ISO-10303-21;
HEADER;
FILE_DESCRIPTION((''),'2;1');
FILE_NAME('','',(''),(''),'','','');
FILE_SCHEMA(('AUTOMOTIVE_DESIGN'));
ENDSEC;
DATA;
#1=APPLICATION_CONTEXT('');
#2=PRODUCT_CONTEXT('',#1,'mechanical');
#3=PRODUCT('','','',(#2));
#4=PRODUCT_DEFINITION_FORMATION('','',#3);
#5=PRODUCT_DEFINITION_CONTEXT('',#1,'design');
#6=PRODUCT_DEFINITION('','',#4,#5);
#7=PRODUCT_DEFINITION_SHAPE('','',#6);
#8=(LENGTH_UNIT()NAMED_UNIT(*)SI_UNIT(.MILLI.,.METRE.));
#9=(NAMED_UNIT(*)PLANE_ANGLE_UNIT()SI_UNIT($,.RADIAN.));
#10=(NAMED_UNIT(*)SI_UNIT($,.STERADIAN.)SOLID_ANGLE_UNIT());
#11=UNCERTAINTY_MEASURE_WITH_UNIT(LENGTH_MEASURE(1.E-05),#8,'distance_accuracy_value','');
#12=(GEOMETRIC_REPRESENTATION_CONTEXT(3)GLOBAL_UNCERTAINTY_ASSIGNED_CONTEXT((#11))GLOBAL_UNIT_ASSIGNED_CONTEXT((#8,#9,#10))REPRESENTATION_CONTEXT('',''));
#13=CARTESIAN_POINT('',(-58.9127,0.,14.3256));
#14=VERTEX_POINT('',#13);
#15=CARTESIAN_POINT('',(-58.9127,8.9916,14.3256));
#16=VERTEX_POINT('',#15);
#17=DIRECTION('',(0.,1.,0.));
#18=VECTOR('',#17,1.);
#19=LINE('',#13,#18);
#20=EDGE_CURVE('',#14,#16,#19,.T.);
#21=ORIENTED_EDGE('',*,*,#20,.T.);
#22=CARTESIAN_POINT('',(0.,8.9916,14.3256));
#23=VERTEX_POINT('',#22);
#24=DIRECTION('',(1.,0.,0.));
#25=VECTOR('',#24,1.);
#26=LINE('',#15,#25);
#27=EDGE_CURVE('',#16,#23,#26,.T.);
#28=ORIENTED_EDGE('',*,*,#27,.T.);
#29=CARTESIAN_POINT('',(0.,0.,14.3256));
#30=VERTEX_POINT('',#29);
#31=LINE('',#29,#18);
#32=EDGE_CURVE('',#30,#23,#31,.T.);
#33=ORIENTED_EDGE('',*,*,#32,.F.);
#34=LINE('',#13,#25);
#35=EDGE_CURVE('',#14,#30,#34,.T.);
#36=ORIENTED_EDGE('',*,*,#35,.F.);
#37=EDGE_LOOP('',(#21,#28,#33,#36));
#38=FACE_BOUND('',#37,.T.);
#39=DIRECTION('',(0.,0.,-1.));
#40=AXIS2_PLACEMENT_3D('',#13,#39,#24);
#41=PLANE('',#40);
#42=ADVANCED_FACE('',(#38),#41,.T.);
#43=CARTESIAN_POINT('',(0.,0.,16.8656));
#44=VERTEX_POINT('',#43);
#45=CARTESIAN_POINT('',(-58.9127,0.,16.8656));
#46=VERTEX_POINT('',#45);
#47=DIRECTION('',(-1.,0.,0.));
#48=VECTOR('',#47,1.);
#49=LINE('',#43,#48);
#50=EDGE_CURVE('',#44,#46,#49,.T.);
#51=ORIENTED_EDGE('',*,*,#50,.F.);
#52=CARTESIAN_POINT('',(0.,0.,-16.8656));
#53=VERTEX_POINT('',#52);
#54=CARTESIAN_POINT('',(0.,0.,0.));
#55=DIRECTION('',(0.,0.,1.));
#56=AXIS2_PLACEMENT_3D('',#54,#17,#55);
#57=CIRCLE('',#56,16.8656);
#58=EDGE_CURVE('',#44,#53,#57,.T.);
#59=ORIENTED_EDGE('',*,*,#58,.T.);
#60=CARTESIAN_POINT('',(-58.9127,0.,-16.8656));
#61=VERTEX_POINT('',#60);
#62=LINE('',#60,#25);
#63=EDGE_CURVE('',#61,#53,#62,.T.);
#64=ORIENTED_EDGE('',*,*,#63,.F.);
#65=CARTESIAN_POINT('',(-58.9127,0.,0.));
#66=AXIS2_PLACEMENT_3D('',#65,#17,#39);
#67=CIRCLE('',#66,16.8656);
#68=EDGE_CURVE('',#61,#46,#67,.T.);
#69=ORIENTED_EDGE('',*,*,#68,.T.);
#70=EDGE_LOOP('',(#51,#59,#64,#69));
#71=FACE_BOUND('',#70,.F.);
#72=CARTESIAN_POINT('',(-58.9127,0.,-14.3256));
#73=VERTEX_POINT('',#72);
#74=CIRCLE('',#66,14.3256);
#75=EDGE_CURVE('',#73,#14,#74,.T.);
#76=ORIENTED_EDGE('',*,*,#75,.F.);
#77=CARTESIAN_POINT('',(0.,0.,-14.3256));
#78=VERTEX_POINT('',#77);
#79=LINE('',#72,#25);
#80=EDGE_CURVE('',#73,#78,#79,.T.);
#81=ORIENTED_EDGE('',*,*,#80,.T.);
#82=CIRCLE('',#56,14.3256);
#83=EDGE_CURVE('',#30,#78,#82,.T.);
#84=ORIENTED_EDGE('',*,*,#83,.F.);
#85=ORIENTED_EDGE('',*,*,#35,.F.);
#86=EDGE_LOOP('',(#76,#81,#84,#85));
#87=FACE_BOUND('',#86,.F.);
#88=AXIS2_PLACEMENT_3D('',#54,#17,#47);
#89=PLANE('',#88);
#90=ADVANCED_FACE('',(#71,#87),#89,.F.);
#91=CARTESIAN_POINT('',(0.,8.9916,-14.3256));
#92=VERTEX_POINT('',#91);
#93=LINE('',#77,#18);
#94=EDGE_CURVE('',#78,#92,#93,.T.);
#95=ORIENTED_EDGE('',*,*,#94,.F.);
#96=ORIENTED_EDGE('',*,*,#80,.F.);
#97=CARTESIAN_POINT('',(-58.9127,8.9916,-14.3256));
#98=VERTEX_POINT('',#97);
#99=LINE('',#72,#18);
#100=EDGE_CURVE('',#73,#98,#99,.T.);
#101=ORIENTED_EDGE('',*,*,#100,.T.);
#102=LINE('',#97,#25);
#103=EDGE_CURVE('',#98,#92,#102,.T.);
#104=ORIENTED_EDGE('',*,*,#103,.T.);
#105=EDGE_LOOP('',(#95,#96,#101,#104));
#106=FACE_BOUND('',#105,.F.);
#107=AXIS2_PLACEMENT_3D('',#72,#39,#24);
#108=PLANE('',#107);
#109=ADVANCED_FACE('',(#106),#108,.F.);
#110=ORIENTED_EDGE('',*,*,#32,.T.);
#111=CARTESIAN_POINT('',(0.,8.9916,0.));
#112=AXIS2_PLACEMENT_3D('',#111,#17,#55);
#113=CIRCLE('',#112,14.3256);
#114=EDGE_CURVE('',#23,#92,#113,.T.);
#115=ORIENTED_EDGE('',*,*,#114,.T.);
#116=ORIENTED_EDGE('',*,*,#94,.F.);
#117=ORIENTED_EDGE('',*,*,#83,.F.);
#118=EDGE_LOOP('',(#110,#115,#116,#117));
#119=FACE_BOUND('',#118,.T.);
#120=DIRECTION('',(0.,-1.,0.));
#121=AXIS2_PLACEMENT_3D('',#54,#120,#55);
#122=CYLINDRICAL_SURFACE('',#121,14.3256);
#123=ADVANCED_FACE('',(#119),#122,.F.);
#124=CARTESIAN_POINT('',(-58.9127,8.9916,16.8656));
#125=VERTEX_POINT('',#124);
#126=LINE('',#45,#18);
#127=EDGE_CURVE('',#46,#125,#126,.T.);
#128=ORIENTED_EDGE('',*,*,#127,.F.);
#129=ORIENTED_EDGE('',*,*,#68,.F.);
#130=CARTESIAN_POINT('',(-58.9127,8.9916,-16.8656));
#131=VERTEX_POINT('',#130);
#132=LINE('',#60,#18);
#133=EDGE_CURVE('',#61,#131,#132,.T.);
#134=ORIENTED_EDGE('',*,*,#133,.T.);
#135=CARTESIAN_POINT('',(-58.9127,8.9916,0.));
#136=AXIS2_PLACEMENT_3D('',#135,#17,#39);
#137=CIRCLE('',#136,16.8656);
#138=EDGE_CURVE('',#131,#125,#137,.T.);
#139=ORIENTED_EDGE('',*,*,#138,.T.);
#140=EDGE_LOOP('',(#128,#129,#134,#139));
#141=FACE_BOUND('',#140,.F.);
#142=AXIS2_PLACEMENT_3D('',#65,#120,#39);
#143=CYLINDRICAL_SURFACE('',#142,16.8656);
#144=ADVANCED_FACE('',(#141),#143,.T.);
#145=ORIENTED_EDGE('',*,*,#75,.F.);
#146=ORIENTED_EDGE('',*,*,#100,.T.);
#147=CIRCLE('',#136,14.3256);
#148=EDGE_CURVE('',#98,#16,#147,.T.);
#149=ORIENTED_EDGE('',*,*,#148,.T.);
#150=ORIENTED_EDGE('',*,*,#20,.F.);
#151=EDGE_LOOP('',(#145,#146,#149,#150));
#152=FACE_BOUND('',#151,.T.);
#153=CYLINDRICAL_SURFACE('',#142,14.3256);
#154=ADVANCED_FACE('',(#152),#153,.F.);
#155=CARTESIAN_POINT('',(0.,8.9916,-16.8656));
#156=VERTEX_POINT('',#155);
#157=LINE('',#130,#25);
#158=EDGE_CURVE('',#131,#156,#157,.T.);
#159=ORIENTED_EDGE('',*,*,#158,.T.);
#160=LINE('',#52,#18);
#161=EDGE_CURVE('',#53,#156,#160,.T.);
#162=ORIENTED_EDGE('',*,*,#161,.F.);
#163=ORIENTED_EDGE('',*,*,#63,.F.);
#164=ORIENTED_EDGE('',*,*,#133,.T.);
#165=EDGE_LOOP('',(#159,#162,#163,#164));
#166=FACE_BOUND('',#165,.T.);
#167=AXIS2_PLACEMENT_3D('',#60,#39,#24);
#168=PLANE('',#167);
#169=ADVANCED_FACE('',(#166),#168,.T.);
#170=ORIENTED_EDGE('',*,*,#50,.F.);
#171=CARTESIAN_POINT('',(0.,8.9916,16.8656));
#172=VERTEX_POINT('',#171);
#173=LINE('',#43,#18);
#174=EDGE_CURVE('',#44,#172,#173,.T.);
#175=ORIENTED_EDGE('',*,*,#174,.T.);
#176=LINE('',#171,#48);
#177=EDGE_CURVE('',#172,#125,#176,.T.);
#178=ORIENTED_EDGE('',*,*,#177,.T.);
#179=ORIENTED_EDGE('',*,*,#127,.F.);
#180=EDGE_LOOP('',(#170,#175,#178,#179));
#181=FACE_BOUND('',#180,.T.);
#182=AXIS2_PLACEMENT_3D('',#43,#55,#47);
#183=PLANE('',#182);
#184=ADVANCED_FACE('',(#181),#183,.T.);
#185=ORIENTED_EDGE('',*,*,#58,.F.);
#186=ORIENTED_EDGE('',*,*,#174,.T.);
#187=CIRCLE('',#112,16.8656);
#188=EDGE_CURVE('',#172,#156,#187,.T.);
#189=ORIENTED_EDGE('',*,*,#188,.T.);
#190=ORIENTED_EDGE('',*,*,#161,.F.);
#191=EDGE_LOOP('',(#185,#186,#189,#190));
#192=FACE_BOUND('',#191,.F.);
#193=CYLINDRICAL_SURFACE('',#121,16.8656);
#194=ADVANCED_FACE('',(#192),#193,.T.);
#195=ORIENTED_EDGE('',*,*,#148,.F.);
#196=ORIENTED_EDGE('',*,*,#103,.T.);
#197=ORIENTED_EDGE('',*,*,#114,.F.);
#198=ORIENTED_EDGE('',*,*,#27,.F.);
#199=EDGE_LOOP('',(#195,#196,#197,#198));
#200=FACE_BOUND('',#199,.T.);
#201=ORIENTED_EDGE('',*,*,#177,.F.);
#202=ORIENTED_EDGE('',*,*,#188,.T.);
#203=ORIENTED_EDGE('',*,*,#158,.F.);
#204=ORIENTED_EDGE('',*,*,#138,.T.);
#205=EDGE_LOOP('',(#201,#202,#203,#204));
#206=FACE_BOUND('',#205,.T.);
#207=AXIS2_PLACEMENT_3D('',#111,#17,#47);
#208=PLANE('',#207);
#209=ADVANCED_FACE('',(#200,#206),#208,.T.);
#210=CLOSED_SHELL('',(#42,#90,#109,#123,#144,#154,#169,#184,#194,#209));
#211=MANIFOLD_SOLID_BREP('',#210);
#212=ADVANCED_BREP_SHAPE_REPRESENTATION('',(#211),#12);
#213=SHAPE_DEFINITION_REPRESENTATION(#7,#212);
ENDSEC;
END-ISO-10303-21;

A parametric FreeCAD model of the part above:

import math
import FreeCAD as App
import Part
import Sketcher

V = App.Vector
Q = App.Units.Quantity

doc = App.newDocument("Part")
body = doc.addObject("PartDesign::Body", "Body")

sketch1 = body.newObject("Sketcher::SketchObject", "Sketch")
sketch1.AttachmentSupport = (doc.getObject("XZ_Plane"), [""])
sketch1.MapMode = "FlatFace"
sketch1.addGeometry([
    Part.LineSegment(V(-59, 17, 0), V(0, 17, 0)),
    Part.ArcOfCircle(Part.Circle(V(0, 0, 0), V(0, 0, 1), 17), math.radians(-90), math.radians(90)),
    Part.LineSegment(V(0, -17, 0), V(-59, -17, 0)),
    Part.ArcOfCircle(Part.Circle(V(-59, 0, 0), V(0, 0, 1), 17), math.radians(90), math.radians(270)),
    Part.LineSegment(V(0, 14, 0), V(-59, 14, 0)),
    Part.ArcOfCircle(Part.Circle(V(-59, 0, 0), V(0, 0, 1), 14), math.radians(90), math.radians(270)),
    Part.LineSegment(V(-59, -14, 0), V(0, -14, 0)),
    Part.ArcOfCircle(Part.Circle(V(0, 0, 0), V(0, 0, 1), 14), math.radians(-90), math.radians(90)),
], False)
sketch1.addConstraint([
    Sketcher.Constraint("Tangent", 0, 2, 1, 2),
    Sketcher.Constraint("Tangent", 1, 1, 2, 1),
    Sketcher.Constraint("Tangent", 2, 2, 3, 2),
    Sketcher.Constraint("Tangent", 3, 1, 0, 1),
    Sketcher.Constraint("Tangent", 4, 2, 5, 1),
    Sketcher.Constraint("Tangent", 5, 2, 6, 1),
    Sketcher.Constraint("Tangent", 6, 2, 7, 1),
    Sketcher.Constraint("Tangent", 7, 2, 4, 1),
    Sketcher.Constraint("Horizontal", 0),
    Sketcher.Constraint("Horizontal", 2),
    Sketcher.Constraint("Horizontal", 4),
    Sketcher.Constraint("Horizontal", 6),
    Sketcher.Constraint("Coincident", 1, 3, -1, 1),
    Sketcher.Constraint("Coincident", 7, 3, -1, 1),
    Sketcher.Constraint("Vertical", 5, 3, 2, 2),
    Sketcher.Constraint("Radius", 5, Q("0.564 in")),
    Sketcher.Constraint("DistanceY", 4, 2, 3, 1, Q("0.1 in")),
    Sketcher.Constraint("DistanceX", 0, 1, 0, 2, Q("2.3194 in")),
])
pad1 = body.newObject("PartDesign::Pad", "Pad")
pad1.Profile = sketch1
pad1.Length = Q("0.354 in")
pad1.Reversed = True

doc.recompute()
